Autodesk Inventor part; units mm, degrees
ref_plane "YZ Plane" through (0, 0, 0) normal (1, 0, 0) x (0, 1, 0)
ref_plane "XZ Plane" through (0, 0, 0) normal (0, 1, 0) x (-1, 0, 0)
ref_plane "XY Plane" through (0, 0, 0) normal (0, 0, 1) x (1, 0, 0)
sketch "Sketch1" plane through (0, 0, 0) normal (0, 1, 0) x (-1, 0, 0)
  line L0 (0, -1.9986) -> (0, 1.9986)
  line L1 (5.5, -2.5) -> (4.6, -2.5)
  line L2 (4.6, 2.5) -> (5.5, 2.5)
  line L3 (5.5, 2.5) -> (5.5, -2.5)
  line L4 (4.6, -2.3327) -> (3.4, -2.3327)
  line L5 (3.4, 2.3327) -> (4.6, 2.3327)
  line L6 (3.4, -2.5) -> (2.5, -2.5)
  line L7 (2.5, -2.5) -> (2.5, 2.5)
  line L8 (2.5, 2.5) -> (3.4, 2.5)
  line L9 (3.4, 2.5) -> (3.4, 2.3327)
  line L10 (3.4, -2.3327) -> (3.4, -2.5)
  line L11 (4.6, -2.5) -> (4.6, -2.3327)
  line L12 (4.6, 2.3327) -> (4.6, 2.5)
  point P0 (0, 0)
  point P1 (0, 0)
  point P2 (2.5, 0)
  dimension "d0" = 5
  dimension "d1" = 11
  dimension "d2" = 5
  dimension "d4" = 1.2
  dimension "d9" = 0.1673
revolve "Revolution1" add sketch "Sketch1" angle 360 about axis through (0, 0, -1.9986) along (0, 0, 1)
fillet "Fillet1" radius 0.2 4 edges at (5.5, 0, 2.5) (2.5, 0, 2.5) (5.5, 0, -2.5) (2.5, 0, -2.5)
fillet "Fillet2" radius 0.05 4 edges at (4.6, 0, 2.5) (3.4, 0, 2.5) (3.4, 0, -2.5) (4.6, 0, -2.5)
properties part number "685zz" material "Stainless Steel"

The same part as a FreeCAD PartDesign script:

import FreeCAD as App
import Part
import Sketcher

V = App.Vector
Q = App.Units.Quantity


def edges_at(feature, points):
    """Names of the edges that pass closest to the given points."""
    edges = feature.Shape.Edges
    near = lambda p: min(range(len(edges)), key=lambda i: edges[i].distToShape(Part.Vertex(*p))[0])
    return sorted({f"Edge{near(p) + 1}" for p in points})

doc = App.newDocument("Part")
body = doc.addObject("PartDesign::Body", "Body")

sketch1 = body.newObject("Sketcher::SketchObject", "Sketch")
sketch1.AttachmentSupport = (doc.getObject("XZ_Plane"), [""])
sketch1.MapMode = "FlatFace"
sketch1.addGeometry([
    Part.LineSegment(V(-4.6, -2.5, 0), V(-5.5, -2.5, 0)),
    Part.LineSegment(V(-5.5, -2.5, 0), V(-5.5, 2.5, 0)),
    Part.LineSegment(V(-5.5, 2.5, 0), V(-4.6, 2.5, 0)),
    Part.LineSegment(V(-4.6, 2.5, 0), V(-4.6, 2.33, 0)),
    Part.LineSegment(V(-4.6, 2.33, 0), V(-3.4, 2.33, 0)),
    Part.LineSegment(V(-3.4, 2.33, 0), V(-3.4, 2.5, 0)),
    Part.LineSegment(V(-3.4, 2.5, 0), V(-2.5, 2.5, 0)),
    Part.LineSegment(V(-2.5, 2.5, 0), V(-2.5, -2.5, 0)),
    Part.LineSegment(V(-2.5, -2.5, 0), V(-3.4, -2.5, 0)),
    Part.LineSegment(V(-3.4, -2.5, 0), V(-3.4, -2.33, 0)),
    Part.LineSegment(V(-3.4, -2.33, 0), V(-4.6, -2.33, 0)),
    Part.LineSegment(V(-4.6, -2.33, 0), V(-4.6, -2.5, 0)),
], False)
sketch1.addConstraint([
    Sketcher.Constraint("Coincident", 0, 2, 1, 1),
    Sketcher.Constraint("Coincident", 1, 2, 2, 1),
    Sketcher.Constraint("Coincident", 2, 2, 3, 1),
    Sketcher.Constraint("Coincident", 3, 2, 4, 1),
    Sketcher.Constraint("Coincident", 4, 2, 5, 1),
    Sketcher.Constraint("Coincident", 5, 2, 6, 1),
    Sketcher.Constraint("Coincident", 6, 2, 7, 1),
    Sketcher.Constraint("Coincident", 7, 2, 8, 1),
    Sketcher.Constraint("Coincident", 8, 2, 9, 1),
    Sketcher.Constraint("Coincident", 9, 2, 10, 1),
    Sketcher.Constraint("Coincident", 10, 2, 11, 1),
    Sketcher.Constraint("Coincident", 11, 2, 0, 1),
    Sketcher.Constraint("Horizontal", 0),
    Sketcher.Constraint("Vertical", 1),
    Sketcher.Constraint("Horizontal", 2),
    Sketcher.Constraint("Vertical", 3),
    Sketcher.Constraint("Horizontal", 4),
    Sketcher.Constraint("Vertical", 5),
    Sketcher.Constraint("Horizontal", 6),
    Sketcher.Constraint("Vertical", 7),
    Sketcher.Constraint("Horizontal", 8),
    Sketcher.Constraint("Vertical", 9),
    Sketcher.Constraint("Horizontal", 10),
    Sketcher.Constraint("Vertical", 11),
    Sketcher.Constraint("Symmetric", 5, 2, 8, 2, -1),
    Sketcher.Constraint("Symmetric", 3, 2, 10, 2, -1),
    Sketcher.Constraint("Horizontal", 2, 2, 5, 2),
    Sketcher.Constraint("Horizontal", 0, 2, 7, 2),
    Sketcher.Constraint("Equal", 2, 6),
    Sketcher.Constraint("DistanceY", 1, 1, 1, 2, Q("5 mm")),
    Sketcher.Constraint("DistanceX", 4, 1, 4, 2, Q("1.2 mm")),
    Sketcher.Constraint("DistanceX", 0, 2, 0, 1, Q("0.9 mm")),
    Sketcher.Constraint("DistanceY", 3, 2, 3, 1, Q("0.1673 mm")),
    Sketcher.Constraint("DistanceX", 0, 2, -1, 1, Q("5.5 mm")),
])
revolution = body.newObject("PartDesign::Revolution", "Revolution")
revolution.Profile = sketch1
revolution.ReferenceAxis = (sketch1, ["V_Axis"])
revolution.Angle = 360
doc.recompute()

fillet = body.newObject("PartDesign::Fillet", "Fillet")
fillet.Base = (revolution, edges_at(revolution, [
    (5.5, 0, 2.5),
    (2.5, 0, 2.5),
    (5.5, 0, -2.5),
    (2.5, 0, -2.5),
]))
fillet.Radius = 0.2
doc.recompute()

fillet2 = body.newObject("PartDesign::Fillet", "Fillet001")
fillet2.Base = (fillet, edges_at(fillet, [
    (4.6, 0, 2.5),
    (3.4, 0, 2.5),
    (3.4, 0, -2.5),
    (4.6, 0, -2.5),
]))
fillet2.Radius = 0.05

doc.recompute()
